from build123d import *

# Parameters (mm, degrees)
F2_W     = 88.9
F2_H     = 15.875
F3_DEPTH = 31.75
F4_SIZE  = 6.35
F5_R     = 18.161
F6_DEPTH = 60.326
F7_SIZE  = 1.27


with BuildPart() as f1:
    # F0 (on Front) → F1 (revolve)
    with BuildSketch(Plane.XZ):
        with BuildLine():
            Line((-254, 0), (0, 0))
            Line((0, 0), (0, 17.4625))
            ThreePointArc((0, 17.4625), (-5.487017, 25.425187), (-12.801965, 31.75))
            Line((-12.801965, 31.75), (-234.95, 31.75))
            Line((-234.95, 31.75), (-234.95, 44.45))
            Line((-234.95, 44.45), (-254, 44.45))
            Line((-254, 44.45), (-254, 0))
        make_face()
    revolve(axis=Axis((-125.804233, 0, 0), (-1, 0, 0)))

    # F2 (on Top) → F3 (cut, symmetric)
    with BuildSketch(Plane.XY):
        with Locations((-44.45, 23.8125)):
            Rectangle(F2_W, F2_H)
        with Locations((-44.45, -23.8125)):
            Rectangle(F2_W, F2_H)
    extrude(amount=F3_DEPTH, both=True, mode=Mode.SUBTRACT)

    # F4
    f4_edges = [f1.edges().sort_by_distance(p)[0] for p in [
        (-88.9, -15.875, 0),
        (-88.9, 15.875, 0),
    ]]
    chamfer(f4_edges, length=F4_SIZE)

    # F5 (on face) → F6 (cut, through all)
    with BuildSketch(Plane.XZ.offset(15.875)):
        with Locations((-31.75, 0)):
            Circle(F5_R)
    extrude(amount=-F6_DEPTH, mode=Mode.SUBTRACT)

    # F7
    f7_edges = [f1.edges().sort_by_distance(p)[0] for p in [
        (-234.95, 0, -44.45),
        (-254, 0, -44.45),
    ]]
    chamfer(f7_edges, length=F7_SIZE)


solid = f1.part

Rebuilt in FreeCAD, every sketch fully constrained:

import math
import FreeCAD as App
import Part
import Sketcher

V = App.Vector
Q = App.Units.Quantity


def edges_at(feature, points):
    """Names of the edges that pass closest to the given points."""
    edges = feature.Shape.Edges
    near = lambda p: min(range(len(edges)), key=lambda i: edges[i].distToShape(Part.Vertex(*p))[0])
    return sorted({f"Edge{near(p) + 1}" for p in points})

doc = App.newDocument("Part")
body = doc.addObject("PartDesign::Body", "Body")

# Sketch on XZ plane
sketch1 = doc.addObject("Sketcher::SketchObject", "Sketch")
body.addObject(sketch1)
sketch1.AttachmentSupport = (doc.XZ_Plane, [""])
sketch1.MapMode = "FlatFace"
sketch1.addGeometry([
    Part.LineSegment(V(-254, 0, 0), V(0, 0, 0)),  # 0
    Part.LineSegment(V(0, 0, 0), V(0, 17, 0)),  # 1
    Part.ArcOfCircle(Part.Circle(V(-34, 0, 0), V(0, 0, 1), 38), math.radians(27), math.radians(56)),  # 2
    Part.LineSegment(V(-13, 32, 0), V(-235, 32, 0)),  # 3
    Part.LineSegment(V(-235, 32, 0), V(-235, 44, 0)),  # 4
    Part.LineSegment(V(-235, 44, 0), V(-254, 44, 0)),  # 5
    Part.LineSegment(V(-254, 44, 0), V(-254, 0, 0)),  # 6
], False)
sketch1.addConstraint([
    Sketcher.Constraint("Coincident", 0, 2, 1, 1),
    Sketcher.Constraint("Coincident", 1, 2, 2, 1),
    Sketcher.Constraint("Coincident", 2, 2, 3, 1),
    Sketcher.Constraint("Coincident", 3, 2, 4, 1),
    Sketcher.Constraint("Coincident", 4, 2, 5, 1),
    Sketcher.Constraint("Coincident", 5, 2, 6, 1),
    Sketcher.Constraint("Coincident", 6, 2, 0, 1),
    Sketcher.Constraint("Horizontal", 0),
    Sketcher.Constraint("Vertical", 1),
    Sketcher.Constraint("Horizontal", 3),
    Sketcher.Constraint("Vertical", 4),
    Sketcher.Constraint("Horizontal", 5),
    Sketcher.Constraint("Vertical", 6),
    Sketcher.Constraint("Coincident", 0, 2, -1, 1),
    Sketcher.Constraint("PointOnObject", 2, 3, -1),
    Sketcher.Constraint("Radius", 2, Q("1.4999999 in")),
    Sketcher.Constraint("DistanceX", 0, 1, 0, 2, Q("10 in")),
    Sketcher.Constraint("DistanceY", 4, 1, 4, 2, Q("0.5 in")),
    Sketcher.Constraint("DistanceX", 5, 2, 5, 1, Q("0.75 in")),
    Sketcher.Constraint("DistanceY", 6, 2, 6, 1, Q("1.75 in")),
    Sketcher.Constraint("DistanceY", 1, 1, 1, 2, Q("0.6875 in")),
])
revolution = doc.addObject("PartDesign::Revolution", "Revolution")
body.addObject(revolution)
revolution.Profile = sketch1
revolution.ReferenceAxis = (sketch1, ["H_Axis"])
revolution.Angle = 360

# Sketch on XY plane
sketch2 = doc.addObject("Sketcher::SketchObject", "Sketch001")
body.addObject(sketch2)
sketch2.AttachmentSupport = (doc.XY_Plane, [""])
sketch2.MapMode = "FlatFace"
sketch2.addGeometry([
    Part.LineSegment(V(-89, 32, 0), V(-89, 16, 0)),  # 0
    Part.LineSegment(V(-89, 16, 0), V(0, 16, 0)),  # 1
    Part.LineSegment(V(0, 16, 0), V(0, 32, 0)),  # 2
    Part.LineSegment(V(0, 32, 0), V(-89, 32, 0)),  # 3
    Part.LineSegment(V(-89, -16, 0), V(-89, -32, 0)),  # 4
    Part.LineSegment(V(-89, -32, 0), V(0, -32, 0)),  # 5
    Part.LineSegment(V(0, -32, 0), V(0, -16, 0)),  # 6
    Part.LineSegment(V(0, -16, 0), V(-89, -16, 0)),  # 7
], False)
sketch2.addConstraint([
    Sketcher.Constraint("Coincident", 0, 2, 1, 1),
    Sketcher.Constraint("Coincident", 1, 2, 2, 1),
    Sketcher.Constraint("Coincident", 2, 2, 3, 1),
    Sketcher.Constraint("Coincident", 3, 2, 0, 1),
    Sketcher.Constraint("Coincident", 4, 2, 5, 1),
    Sketcher.Constraint("Coincident", 5, 2, 6, 1),
    Sketcher.Constraint("Coincident", 6, 2, 7, 1),
    Sketcher.Constraint("Coincident", 7, 2, 4, 1),
    Sketcher.Constraint("Vertical", 0),
    Sketcher.Constraint("Horizontal", 1),
    Sketcher.Constraint("Vertical", 2),
    Sketcher.Constraint("Horizontal", 3),
    Sketcher.Constraint("Vertical", 4),
    Sketcher.Constraint("Horizontal", 5),
    Sketcher.Constraint("Vertical", 6),
    Sketcher.Constraint("Horizontal", 7),
    Sketcher.Constraint("Symmetric", 2, 2, 5, 2, -1, 1),
    Sketcher.Constraint("Symmetric", 1, 2, 6, 2, -1),
    Sketcher.Constraint("Vertical", 3, 2, 4, 2),
    Sketcher.Constraint("DistanceX", 1, 1, 1, 2, Q("3.5 in")),
    Sketcher.Constraint("DistanceY", 4, 2, 3, 2, Q("2.5 in")),
    Sketcher.Constraint("DistanceY", 0, 2, 0, 1, Q("0.625 in")),
])
pocket1 = doc.addObject("PartDesign::Pocket", "Pocket")
body.addObject(pocket1)
pocket1.Profile = sketch2
pocket1.Length = Q("2.5 in")
pocket1.Midplane = True
doc.recompute()

chamfer = doc.addObject("PartDesign::Chamfer", "Chamfer")
body.addObject(chamfer)
chamfer.Base = (pocket1, edges_at(pocket1, [(-88.9, -15.875, 0), (-88.9, 15.875, 0)]))
chamfer.Size = Q("0.25 in")

# Sketch on XZ plane
sketch3 = doc.addObject("Sketcher::SketchObject", "Sketch002")
body.addObject(sketch3)
sketch3.AttachmentSupport = (doc.XZ_Plane, [""])
sketch3.MapMode = "FlatFace"
sketch3.AttachmentOffset = App.Placement(V(0, 0, 0.625 * 25.4), App.Rotation())
sketch3.addGeometry(Part.Circle(V(-32, 0, 0), V(0, 0, 1), 18), False)
sketch3.addConstraint([
    Sketcher.Constraint("PointOnObject", 0, 3, -1),
    Sketcher.Constraint("Diameter", 0, Q("1.43 in")),
    Sketcher.Constraint("DistanceX", 0, 3, -1, 1, Q("1.25 in")),
])
pocket2 = doc.addObject("PartDesign::Pocket", "Pocket001")
body.addObject(pocket2)
pocket2.Profile = sketch3
pocket2.Type = "ThroughAll"
doc.recompute()

chamfer2 = doc.addObject("PartDesign::Chamfer", "Chamfer001")
body.addObject(chamfer2)
chamfer2.Base = (pocket2, edges_at(pocket2, [(-234.95, 0, -44.45), (-254, 0, -44.45)]))
chamfer2.Size = Q("0.05 in")

doc.recompute()
